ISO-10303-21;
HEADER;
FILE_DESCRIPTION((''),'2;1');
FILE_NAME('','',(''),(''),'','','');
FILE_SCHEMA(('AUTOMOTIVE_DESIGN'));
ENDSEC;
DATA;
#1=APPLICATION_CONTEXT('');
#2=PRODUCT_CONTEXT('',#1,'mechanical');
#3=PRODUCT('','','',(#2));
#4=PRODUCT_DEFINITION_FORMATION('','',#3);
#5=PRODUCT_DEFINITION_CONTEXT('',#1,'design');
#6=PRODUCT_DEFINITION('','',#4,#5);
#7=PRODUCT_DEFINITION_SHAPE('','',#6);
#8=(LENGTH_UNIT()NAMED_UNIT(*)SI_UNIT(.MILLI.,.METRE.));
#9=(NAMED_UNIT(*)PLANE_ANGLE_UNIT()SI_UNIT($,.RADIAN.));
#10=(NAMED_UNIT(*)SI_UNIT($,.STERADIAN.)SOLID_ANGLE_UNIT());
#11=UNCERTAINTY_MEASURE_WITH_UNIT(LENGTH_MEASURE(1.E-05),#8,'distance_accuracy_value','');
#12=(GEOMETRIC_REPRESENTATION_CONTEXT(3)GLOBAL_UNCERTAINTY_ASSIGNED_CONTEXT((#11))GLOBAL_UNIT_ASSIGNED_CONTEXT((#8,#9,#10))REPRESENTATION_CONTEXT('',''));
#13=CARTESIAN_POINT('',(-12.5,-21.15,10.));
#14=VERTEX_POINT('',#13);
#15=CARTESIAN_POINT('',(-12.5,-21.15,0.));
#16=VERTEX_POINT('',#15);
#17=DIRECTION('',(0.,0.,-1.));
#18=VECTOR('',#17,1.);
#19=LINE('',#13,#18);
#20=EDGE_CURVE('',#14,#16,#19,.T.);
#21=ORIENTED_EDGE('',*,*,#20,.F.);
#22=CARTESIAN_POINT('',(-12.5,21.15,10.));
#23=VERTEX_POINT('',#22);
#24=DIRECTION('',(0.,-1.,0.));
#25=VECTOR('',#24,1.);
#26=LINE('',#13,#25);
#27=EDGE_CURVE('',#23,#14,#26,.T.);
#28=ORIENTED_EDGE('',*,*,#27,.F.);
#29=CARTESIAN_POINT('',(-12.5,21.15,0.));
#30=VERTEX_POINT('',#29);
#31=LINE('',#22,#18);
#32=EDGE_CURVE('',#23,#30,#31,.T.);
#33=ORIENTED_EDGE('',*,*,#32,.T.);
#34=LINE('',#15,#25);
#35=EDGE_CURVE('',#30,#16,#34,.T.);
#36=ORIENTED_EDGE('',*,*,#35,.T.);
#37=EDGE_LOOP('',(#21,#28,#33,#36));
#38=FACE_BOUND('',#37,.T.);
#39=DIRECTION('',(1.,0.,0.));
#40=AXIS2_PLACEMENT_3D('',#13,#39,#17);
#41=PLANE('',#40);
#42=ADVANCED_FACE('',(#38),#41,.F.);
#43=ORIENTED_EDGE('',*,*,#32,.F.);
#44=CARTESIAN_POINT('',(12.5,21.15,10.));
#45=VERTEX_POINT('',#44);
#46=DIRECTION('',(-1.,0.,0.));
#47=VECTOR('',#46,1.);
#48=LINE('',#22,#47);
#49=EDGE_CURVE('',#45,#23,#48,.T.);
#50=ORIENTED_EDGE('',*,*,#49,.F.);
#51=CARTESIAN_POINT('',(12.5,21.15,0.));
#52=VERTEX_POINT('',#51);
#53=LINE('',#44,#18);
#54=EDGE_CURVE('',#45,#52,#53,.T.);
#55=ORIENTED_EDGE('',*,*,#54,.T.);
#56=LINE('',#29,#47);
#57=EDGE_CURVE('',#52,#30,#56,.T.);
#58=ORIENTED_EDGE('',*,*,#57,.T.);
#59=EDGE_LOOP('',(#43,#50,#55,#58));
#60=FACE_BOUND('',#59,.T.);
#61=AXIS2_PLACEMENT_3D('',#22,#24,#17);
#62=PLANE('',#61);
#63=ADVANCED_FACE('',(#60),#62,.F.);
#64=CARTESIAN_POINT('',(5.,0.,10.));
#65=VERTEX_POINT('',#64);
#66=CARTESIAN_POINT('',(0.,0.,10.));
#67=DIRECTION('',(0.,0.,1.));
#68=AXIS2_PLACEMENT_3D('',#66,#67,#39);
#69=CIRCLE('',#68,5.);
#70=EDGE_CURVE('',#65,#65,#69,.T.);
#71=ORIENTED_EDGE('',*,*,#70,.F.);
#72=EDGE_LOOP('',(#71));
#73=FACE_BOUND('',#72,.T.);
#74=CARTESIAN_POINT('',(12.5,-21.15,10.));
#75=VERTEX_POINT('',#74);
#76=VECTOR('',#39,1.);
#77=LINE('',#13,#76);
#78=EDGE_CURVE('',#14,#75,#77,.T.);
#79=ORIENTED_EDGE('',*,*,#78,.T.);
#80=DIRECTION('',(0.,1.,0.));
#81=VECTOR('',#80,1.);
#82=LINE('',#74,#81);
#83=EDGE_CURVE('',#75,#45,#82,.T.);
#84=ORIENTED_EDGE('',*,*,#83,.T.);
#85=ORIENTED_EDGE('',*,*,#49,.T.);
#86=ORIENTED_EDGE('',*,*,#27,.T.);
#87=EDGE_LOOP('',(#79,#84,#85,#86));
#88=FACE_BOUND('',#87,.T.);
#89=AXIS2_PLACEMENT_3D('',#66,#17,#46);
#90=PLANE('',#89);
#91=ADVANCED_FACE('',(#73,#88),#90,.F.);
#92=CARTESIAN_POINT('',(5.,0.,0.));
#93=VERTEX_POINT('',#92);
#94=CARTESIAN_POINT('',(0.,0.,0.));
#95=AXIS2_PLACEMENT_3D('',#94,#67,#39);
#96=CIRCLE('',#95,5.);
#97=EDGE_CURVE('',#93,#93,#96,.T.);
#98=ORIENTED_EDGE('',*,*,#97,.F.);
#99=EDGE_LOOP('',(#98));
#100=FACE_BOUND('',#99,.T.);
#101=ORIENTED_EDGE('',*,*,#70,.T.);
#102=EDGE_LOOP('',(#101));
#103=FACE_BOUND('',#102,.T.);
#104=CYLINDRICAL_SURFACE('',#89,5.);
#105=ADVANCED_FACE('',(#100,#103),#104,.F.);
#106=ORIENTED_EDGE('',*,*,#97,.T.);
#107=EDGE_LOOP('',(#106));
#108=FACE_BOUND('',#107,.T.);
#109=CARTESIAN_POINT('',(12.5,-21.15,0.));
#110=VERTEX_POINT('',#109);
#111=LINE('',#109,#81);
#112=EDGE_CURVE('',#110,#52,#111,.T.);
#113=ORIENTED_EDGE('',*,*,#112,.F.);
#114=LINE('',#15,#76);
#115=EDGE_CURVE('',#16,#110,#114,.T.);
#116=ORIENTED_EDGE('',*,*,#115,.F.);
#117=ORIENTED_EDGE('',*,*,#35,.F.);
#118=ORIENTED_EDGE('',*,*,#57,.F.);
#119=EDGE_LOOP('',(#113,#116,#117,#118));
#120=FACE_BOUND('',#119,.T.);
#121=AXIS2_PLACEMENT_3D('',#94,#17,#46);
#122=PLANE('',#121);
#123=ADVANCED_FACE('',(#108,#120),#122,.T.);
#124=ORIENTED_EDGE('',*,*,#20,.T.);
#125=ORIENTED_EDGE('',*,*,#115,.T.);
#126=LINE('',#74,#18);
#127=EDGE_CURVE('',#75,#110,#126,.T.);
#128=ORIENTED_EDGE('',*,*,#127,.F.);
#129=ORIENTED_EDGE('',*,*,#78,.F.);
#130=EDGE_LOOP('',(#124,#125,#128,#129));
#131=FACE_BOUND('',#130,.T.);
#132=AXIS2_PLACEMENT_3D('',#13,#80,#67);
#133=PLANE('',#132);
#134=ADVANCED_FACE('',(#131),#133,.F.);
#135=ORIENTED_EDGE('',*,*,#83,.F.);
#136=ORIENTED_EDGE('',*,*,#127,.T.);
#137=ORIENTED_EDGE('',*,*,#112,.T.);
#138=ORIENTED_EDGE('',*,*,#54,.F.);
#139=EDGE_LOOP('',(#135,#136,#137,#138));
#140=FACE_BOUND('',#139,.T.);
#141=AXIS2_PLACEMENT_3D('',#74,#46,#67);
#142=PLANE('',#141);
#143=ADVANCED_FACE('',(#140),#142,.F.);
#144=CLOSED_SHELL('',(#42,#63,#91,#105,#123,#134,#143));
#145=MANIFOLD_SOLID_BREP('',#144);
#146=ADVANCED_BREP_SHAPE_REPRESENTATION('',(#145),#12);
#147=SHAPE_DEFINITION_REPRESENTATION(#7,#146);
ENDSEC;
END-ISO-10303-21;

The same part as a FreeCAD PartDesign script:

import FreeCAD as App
import Part
import Sketcher
Q = App.Units.Quantity

doc = App.newDocument("Part")
body = doc.addObject("PartDesign::Body", "Body")

sketch1 = body.newObject("Sketcher::SketchObject", "Sketch")
sketch1.AttachmentSupport = (doc.getObject("XY_Plane"), [""])
sketch1.MapMode = "FlatFace"
sketch1.addGeometry(Part.LineSegment(App.Vector(-12.5, 21.15, 0), App.Vector(-12.5, -21.15, 0)), False)
sketch1.addGeometry(Part.LineSegment(App.Vector(-12.5, -21.15, 0), App.Vector(12.5, -21.15, 0)), False)
sketch1.addGeometry(Part.LineSegment(App.Vector(12.5, -21.15, 0), App.Vector(12.5, 21.15, 0)), False)
sketch1.addGeometry(Part.LineSegment(App.Vector(12.5, 21.15, 0), App.Vector(-12.5, 21.15, 0)), False)
sketch1.addGeometry(Part.Circle(App.Vector(0, 0, 0), App.Vector(0, 0, 1), 5), False)
sketch1.addConstraint(Sketcher.Constraint("Coincident", 0, 2, 1, 1))
sketch1.addConstraint(Sketcher.Constraint("Coincident", 1, 2, 2, 1))
sketch1.addConstraint(Sketcher.Constraint("Coincident", 2, 2, 3, 1))
sketch1.addConstraint(Sketcher.Constraint("Coincident", 3, 2, 0, 1))
sketch1.addConstraint(Sketcher.Constraint("Vertical", 0))
sketch1.addConstraint(Sketcher.Constraint("Horizontal", 1))
sketch1.addConstraint(Sketcher.Constraint("Vertical", 2))
sketch1.addConstraint(Sketcher.Constraint("Horizontal", 3))
sketch1.addConstraint(Sketcher.Constraint("Coincident", 4, 3, -1, 1))
sketch1.addConstraint(Sketcher.Constraint("Symmetric", 0, 2, 2, 2, -1, 1))
sketch1.addConstraint(Sketcher.Constraint("Diameter", 4, Q("10 mm")))
sketch1.addConstraint(Sketcher.Constraint("DistanceX", 1, 1, 1, 2, Q("25 mm")))
sketch1.addConstraint(Sketcher.Constraint("DistanceY", 0, 2, 0, 1, Q("42.3 mm")))
pad1 = body.newObject("PartDesign::Pad", "Pad")
pad1.Profile = sketch1
pad1.Length = 10

doc.recompute()
